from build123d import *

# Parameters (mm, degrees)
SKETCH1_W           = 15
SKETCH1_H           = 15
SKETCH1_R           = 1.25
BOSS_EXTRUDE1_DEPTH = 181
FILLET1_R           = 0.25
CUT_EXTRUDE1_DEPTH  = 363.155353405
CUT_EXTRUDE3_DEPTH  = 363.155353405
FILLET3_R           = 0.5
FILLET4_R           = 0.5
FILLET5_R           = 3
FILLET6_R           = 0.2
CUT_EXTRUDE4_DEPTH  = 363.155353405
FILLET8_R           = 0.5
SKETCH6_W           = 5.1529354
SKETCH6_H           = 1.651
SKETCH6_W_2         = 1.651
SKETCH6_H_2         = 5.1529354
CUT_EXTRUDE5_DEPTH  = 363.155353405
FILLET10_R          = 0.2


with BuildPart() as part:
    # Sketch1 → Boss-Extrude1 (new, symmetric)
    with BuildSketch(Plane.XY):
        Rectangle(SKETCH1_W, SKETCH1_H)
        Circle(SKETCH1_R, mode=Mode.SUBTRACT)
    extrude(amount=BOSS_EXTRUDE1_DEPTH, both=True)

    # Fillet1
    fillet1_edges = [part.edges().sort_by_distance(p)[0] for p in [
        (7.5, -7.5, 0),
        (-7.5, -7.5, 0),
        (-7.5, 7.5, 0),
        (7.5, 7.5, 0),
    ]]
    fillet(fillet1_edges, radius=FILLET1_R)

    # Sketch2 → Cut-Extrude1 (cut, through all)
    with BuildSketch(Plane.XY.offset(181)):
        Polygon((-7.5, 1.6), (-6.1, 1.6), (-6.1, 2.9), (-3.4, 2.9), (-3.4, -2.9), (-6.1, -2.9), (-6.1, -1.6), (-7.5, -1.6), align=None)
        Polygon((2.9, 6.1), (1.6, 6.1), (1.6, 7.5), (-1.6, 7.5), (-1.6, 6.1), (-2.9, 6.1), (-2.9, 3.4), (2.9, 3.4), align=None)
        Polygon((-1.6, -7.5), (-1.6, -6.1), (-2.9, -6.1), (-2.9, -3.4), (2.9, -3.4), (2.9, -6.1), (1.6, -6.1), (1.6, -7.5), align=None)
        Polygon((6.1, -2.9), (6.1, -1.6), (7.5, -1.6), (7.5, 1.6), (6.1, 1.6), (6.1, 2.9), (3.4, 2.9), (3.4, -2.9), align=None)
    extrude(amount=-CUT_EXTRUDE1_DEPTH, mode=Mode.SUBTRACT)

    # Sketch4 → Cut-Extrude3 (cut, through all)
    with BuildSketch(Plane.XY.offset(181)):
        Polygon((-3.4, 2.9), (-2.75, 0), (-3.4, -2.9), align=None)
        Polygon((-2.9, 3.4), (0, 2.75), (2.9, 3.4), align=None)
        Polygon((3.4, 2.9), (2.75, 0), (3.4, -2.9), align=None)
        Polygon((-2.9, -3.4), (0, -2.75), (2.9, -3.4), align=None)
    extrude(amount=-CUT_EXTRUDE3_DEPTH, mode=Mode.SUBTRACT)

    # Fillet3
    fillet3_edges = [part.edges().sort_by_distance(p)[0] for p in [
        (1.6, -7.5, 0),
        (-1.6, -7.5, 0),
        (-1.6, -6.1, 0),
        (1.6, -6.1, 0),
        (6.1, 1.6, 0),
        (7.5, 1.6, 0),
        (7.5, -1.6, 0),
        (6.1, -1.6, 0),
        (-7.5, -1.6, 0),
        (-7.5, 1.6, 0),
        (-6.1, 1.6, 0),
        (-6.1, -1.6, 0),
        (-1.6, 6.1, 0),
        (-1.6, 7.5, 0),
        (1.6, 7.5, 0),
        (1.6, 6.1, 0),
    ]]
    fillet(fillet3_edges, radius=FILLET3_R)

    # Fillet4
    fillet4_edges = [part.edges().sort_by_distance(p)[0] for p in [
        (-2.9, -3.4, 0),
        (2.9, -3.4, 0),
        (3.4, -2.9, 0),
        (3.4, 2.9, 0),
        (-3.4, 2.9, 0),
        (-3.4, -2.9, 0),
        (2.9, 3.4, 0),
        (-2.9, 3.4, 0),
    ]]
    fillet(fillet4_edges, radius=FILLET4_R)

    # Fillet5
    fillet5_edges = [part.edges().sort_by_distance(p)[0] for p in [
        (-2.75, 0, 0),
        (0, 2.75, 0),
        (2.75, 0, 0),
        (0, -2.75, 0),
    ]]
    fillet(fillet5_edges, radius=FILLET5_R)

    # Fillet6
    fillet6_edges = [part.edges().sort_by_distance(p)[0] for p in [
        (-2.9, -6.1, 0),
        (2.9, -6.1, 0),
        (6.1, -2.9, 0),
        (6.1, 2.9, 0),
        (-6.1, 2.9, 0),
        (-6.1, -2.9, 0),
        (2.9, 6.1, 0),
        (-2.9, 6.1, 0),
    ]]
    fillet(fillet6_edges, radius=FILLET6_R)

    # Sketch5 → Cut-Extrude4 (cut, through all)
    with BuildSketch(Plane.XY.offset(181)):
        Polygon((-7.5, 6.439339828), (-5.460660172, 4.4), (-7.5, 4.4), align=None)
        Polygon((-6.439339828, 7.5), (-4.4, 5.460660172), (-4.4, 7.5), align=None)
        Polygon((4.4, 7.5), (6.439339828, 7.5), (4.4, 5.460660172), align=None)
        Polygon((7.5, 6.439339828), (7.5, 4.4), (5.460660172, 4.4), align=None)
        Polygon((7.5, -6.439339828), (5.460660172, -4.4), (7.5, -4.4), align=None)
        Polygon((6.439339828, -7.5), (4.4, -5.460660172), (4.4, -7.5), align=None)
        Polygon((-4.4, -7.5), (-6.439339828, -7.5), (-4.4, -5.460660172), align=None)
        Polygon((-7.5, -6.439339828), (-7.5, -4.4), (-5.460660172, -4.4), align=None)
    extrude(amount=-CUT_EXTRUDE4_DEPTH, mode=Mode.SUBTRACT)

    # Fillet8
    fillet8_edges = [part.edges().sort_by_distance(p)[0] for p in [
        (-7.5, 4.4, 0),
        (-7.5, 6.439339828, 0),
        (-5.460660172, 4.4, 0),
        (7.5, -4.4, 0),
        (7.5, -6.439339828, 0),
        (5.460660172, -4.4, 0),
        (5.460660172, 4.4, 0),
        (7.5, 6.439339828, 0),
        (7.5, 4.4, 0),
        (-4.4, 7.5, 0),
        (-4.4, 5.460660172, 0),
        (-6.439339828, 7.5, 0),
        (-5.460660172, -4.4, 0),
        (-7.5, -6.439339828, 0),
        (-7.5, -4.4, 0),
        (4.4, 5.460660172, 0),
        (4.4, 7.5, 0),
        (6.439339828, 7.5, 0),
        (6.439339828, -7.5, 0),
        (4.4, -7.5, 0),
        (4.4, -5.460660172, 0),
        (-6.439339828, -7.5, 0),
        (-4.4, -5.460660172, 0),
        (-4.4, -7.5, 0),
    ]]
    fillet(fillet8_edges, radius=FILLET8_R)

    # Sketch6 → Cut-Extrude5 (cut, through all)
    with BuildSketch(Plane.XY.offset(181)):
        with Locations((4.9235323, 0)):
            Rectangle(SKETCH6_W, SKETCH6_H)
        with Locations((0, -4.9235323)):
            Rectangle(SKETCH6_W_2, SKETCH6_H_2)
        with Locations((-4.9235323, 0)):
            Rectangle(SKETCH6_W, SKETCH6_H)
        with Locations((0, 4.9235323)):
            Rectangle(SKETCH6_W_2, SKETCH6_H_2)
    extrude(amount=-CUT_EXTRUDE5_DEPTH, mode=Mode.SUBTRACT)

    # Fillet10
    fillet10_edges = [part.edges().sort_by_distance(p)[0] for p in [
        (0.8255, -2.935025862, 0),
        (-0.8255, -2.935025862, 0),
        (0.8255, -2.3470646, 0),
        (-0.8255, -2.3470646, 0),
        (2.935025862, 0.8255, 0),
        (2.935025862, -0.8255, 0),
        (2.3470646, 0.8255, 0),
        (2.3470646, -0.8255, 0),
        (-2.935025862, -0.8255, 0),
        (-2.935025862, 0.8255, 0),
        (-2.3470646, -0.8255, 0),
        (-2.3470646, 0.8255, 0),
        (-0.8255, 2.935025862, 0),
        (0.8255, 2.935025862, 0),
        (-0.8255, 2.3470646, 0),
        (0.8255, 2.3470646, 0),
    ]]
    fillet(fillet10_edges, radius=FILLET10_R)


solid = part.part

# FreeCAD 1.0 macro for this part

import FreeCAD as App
import Part
import Sketcher


def edges_at(feature, points):
    """Names of the edges that pass closest to the given points."""
    edges = feature.Shape.Edges
    near = lambda p: min(range(len(edges)), key=lambda i: edges[i].distToShape(Part.Vertex(*p))[0])
    return sorted({f"Edge{near(p) + 1}" for p in points})

doc = App.newDocument("Part")
body = doc.addObject("PartDesign::Body", "Body")

sketch1 = body.newObject("Sketcher::SketchObject", "Sketch")
sketch1.AttachmentSupport = (doc.getObject("XY_Plane"), [""])
sketch1.MapMode = "FlatFace"
sketch1.addGeometry([
    Part.LineSegment(App.Vector(-7.5, 7.5, 0), App.Vector(-7.5, -7.5, 0)),
    Part.LineSegment(App.Vector(-7.5, -7.5, 0), App.Vector(7.5, -7.5, 0)),
    Part.LineSegment(App.Vector(7.5, -7.5, 0), App.Vector(7.5, 7.5, 0)),
    Part.LineSegment(App.Vector(7.5, 7.5, 0), App.Vector(-7.5, 7.5, 0)),
    Part.Circle(App.Vector(0, 0, 0), App.Vector(0, 0, 1), 1.25),
], False)
sketch1.addConstraint([
    Sketcher.Constraint("Coincident", 0, 2, 1, 1),
    Sketcher.Constraint("Coincident", 1, 2, 2, 1),
    Sketcher.Constraint("Coincident", 2, 2, 3, 1),
    Sketcher.Constraint("Coincident", 3, 2, 0, 1),
    Sketcher.Constraint("Vertical", 0),
    Sketcher.Constraint("Horizontal", 1),
    Sketcher.Constraint("Vertical", 2),
    Sketcher.Constraint("Horizontal", 3),
    Sketcher.Constraint("Coincident", 4, 3, -1, 1),
    Sketcher.Constraint("Symmetric", 0, 2, 2, 2, -1, 1),
    Sketcher.Constraint("Equal", 3, 0),
    Sketcher.Constraint("Diameter", 4, 2.5),
    Sketcher.Constraint("DistanceX", 1, 1, 1, 2, 15.0),
])
pad1 = body.newObject("PartDesign::Pad", "Pad")
pad1.Profile = sketch1
pad1.Length = 362
pad1.Midplane = True
doc.recompute()

fillet = body.newObject("PartDesign::Fillet", "Fillet")
fillet.Base = (pad1, edges_at(pad1, [
    (7.5, -7.5, 0),
    (-7.5, -7.5, 0),
    (-7.5, 7.5, 0),
    (7.5, 7.5, 0),
]))
fillet.Radius = 0.25

sketch2 = body.newObject("Sketcher::SketchObject", "Sketch001")
sketch2.AttachmentSupport = (doc.getObject("XY_Plane"), [""])
sketch2.MapMode = "FlatFace"
sketch2.AttachmentOffset = App.Placement(App.Vector(0, 0, 181), App.Rotation())
sketch2.addGeometry([
    Part.LineSegment(App.Vector(-6.1, 1.6, 0), App.Vector(-7.5, 1.6, 0)),
    Part.LineSegment(App.Vector(-7.5, 1.6, 0), App.Vector(-7.5, -1.6, 0)),
    Part.LineSegment(App.Vector(-7.5, -1.6, 0), App.Vector(-6.1, -1.6, 0)),
    Part.LineSegment(App.Vector(-6.1, -1.6, 0), App.Vector(-6.1, -2.9, 0)),
    Part.LineSegment(App.Vector(-6.1, -2.9, 0), App.Vector(-3.4, -2.9, 0)),
    Part.LineSegment(App.Vector(-3.4, -2.9, 0), App.Vector(-3.4, 2.9, 0)),
    Part.LineSegment(App.Vector(-3.4, 2.9, 0), App.Vector(-6.1, 2.9, 0)),
    Part.LineSegment(App.Vector(-6.1, 2.9, 0), App.Vector(-6.1, 1.6, 0)),
    Part.LineSegment(App.Vector(2.9, 6.1, 0), App.Vector(1.6, 6.1, 0)),
    Part.LineSegment(App.Vector(1.6, 6.1, 0), App.Vector(1.6, 7.5, 0)),
    Part.LineSegment(App.Vector(1.6, 7.5, 0), App.Vector(-1.6, 7.5, 0)),
    Part.LineSegment(App.Vector(-1.6, 7.5, 0), App.Vector(-1.6, 6.1, 0)),
    Part.LineSegment(App.Vector(-1.6, 6.1, 0), App.Vector(-2.9, 6.1, 0)),
    Part.LineSegment(App.Vector(-2.9, 6.1, 0), App.Vector(-2.9, 3.4, 0)),
    Part.LineSegment(App.Vector(-2.9, 3.4, 0), App.Vector(2.9, 3.4, 0)),
    Part.LineSegment(App.Vector(2.9, 3.4, 0), App.Vector(2.9, 6.1, 0)),
    Part.LineSegment(App.Vector(-1.6, -6.1, 0), App.Vector(-1.6, -7.5, 0)),
    Part.LineSegment(App.Vector(-1.6, -7.5, 0), App.Vector(1.6, -7.5, 0)),
    Part.LineSegment(App.Vector(1.6, -7.5, 0), App.Vector(1.6, -6.1, 0)),
    Part.LineSegment(App.Vector(1.6, -6.1, 0), App.Vector(2.9, -6.1, 0)),
    Part.LineSegment(App.Vector(2.9, -6.1, 0), App.Vector(2.9, -3.4, 0)),
    Part.LineSegment(App.Vector(2.9, -3.4, 0), App.Vector(-2.9, -3.4, 0)),
    Part.LineSegment(App.Vector(-2.9, -3.4, 0), App.Vector(-2.9, -6.1, 0)),
    Part.LineSegment(App.Vector(-2.9, -6.1, 0), App.Vector(-1.6, -6.1, 0)),
    Part.LineSegment(App.Vector(6.1, -2.9, 0), App.Vector(6.1, -1.6, 0)),
    Part.LineSegment(App.Vector(6.1, -1.6, 0), App.Vector(7.5, -1.6, 0)),
    Part.LineSegment(App.Vector(7.5, -1.6, 0), App.Vector(7.5, 1.6, 0)),
    Part.LineSegment(App.Vector(7.5, 1.6, 0), App.Vector(6.1, 1.6, 0)),
    Part.LineSegment(App.Vector(6.1, 1.6, 0), App.Vector(6.1, 2.9, 0)),
    Part.LineSegment(App.Vector(6.1, 2.9, 0), App.Vector(3.4, 2.9, 0)),
    Part.LineSegment(App.Vector(3.4, 2.9, 0), App.Vector(3.4, -2.9, 0)),
    Part.LineSegment(App.Vector(3.4, -2.9, 0), App.Vector(6.1, -2.9, 0)),
], False)
sketch2.addConstraint([
    Sketcher.Constraint("Coincident", 0, 2, 1, 1),
    Sketcher.Constraint("Coincident", 1, 2, 2, 1),
    Sketcher.Constraint("Coincident", 2, 2, 3, 1),
    Sketcher.Constraint("Coincident", 3, 2, 4, 1),
    Sketcher.Constraint("Coincident", 4, 2, 5, 1),
    Sketcher.Constraint("Coincident", 5, 2, 6, 1),
    Sketcher.Constraint("Coincident", 6, 2, 7, 1),
    Sketcher.Constraint("Coincident", 7, 2, 0, 1),
    Sketcher.Constraint("Coincident", 8, 2, 9, 1),
    Sketcher.Constraint("Coincident", 9, 2, 10, 1),
    Sketcher.Constraint("Coincident", 10, 2, 11, 1),
    Sketcher.Constraint("Coincident", 11, 2, 12, 1),
    Sketcher.Constraint("Coincident", 12, 2, 13, 1),
    Sketcher.Constraint("Coincident", 13, 2, 14, 1),
    Sketcher.Constraint("Coincident", 14, 2, 15, 1),
    Sketcher.Constraint("Coincident", 15, 2, 8, 1),
    Sketcher.Constraint("Coincident", 16, 2, 17, 1),
    Sketcher.Constraint("Coincident", 17, 2, 18, 1),
    Sketcher.Constraint("Coincident", 18, 2, 19, 1),
    Sketcher.Constraint("Coincident", 19, 2, 20, 1),
    Sketcher.Constraint("Coincident", 20, 2, 21, 1),
    Sketcher.Constraint("Coincident", 21, 2, 22, 1),
    Sketcher.Constraint("Coincident", 22, 2, 23, 1),
    Sketcher.Constraint("Coincident", 23, 2, 16, 1),
    Sketcher.Constraint("Coincident", 24, 2, 25, 1),
    Sketcher.Constraint("Coincident", 25, 2, 26, 1),
    Sketcher.Constraint("Coincident", 26, 2, 27, 1),
    Sketcher.Constraint("Coincident", 27, 2, 28, 1),
    Sketcher.Constraint("Coincident", 28, 2, 29, 1),
    Sketcher.Constraint("Coincident", 29, 2, 30, 1),
    Sketcher.Constraint("Coincident", 30, 2, 31, 1),
    Sketcher.Constraint("Coincident", 31, 2, 24, 1),
    Sketcher.Constraint("Horizontal", 0),
    Sketcher.Constraint("Vertical", 1),
    Sketcher.Constraint("Horizontal", 2),
    Sketcher.Constraint("Vertical", 3),
    Sketcher.Constraint("Horizontal", 4),
    Sketcher.Constraint("Vertical", 5),
    Sketcher.Constraint("Horizontal", 6),
    Sketcher.Constraint("Vertical", 7),
    Sketcher.Constraint("Horizontal", 8),
    Sketcher.Constraint("Vertical", 9),
    Sketcher.Constraint("Horizontal", 10),
    Sketcher.Constraint("Vertical", 11),
    Sketcher.Constraint("Horizontal", 12),
    Sketcher.Constraint("Vertical", 13),
    Sketcher.Constraint("Horizontal", 14),
    Sketcher.Constraint("Vertical", 15),
    Sketcher.Constraint("Vertical", 16),
    Sketcher.Constraint("Horizontal", 17),
    Sketcher.Constraint("Vertical", 18),
    Sketcher.Constraint("Horizontal", 19),
    Sketcher.Constraint("Vertical", 20),
    Sketcher.Constraint("Horizontal", 21),
    Sketcher.Constraint("Vertical", 22),
    Sketcher.Constraint("Horizontal", 23),
    Sketcher.Constraint("Vertical", 24),
    Sketcher.Constraint("Horizontal", 25),
    Sketcher.Constraint("Vertical", 26),
    Sketcher.Constraint("Horizontal", 27),
    Sketcher.Constraint("Vertical", 28),
    Sketcher.Constraint("Horizontal", 29),
    Sketcher.Constraint("Vertical", 30),
    Sketcher.Constraint("Horizontal", 31),
    Sketcher.Constraint("Symmetric", 9, 2, 16, 2, -1, 1),
    Sketcher.Constraint("Symmetric", 11, 2, 18, 2, -1, 1),
    Sketcher.Constraint("Symmetric", 13, 2, 20, 2, -1, 1),
    Sketcher.Constraint("Symmetric", 15, 2, 22, 2, -1, 1),
    Sketcher.Constraint("Symmetric", 7, 2, 24, 2, -1, 1),
    Sketcher.Constraint("Symmetric", 1, 2, 26, 2, -1, 1),
    Sketcher.Constraint("Symmetric", 3, 2, 28, 2, -1, 1),
    Sketcher.Constraint("Symmetric", 5, 2, 30, 2, -1, 1),
    Sketcher.Constraint("Symmetric", 8, 2, 11, 2, -2),
    Sketcher.Constraint("Symmetric", 2, 2, 24, 2, -2),
    Sketcher.Constraint("Horizontal", 6, 2, 28, 2),
    Sketcher.Constraint("Vertical", 15, 2, 19, 2),
    Sketcher.Constraint("Equal", 17, 1),
    Sketcher.Constraint("Equal", 23, 3),
    Sketcher.Constraint("Equal", 27, 9),
    Sketcher.Constraint("Equal", 31, 13),
    Sketcher.Constraint("DistanceX", 0, 2, 0, 1, 1.4),
    Sketcher.Constraint("DistanceX", 4, 1, 4, 2, 2.7),
    Sketcher.Constraint("DistanceX", 8, 2, 8, 1, 1.3),
    Sketcher.Constraint("DistanceX", 10, 2, 10, 1, 3.2),
    Sketcher.Constraint("DistanceX", 5, 2, 8, 2, 5.0),
    Sketcher.Constraint("DistanceY", 4, 2, 8, 2, 9.0),
])
pocket1 = body.newObject("PartDesign::Pocket", "Pocket")
pocket1.Profile = sketch2
pocket1.Type = "ThroughAll"

sketch3 = body.newObject("Sketcher::SketchObject", "Sketch002")
sketch3.AttachmentSupport = (doc.getObject("XY_Plane"), [""])
sketch3.MapMode = "FlatFace"
sketch3.AttachmentOffset = App.Placement(App.Vector(0, 0, 181), App.Rotation())
sketch3.addGeometry([
    Part.LineSegment(App.Vector(-2.75, 0, 0), App.Vector(-3.4, 2.9, 0)),
    Part.LineSegment(App.Vector(-3.4, 2.9, 0), App.Vector(-3.4, -2.9, 0)),
    Part.LineSegment(App.Vector(-3.4, -2.9, 0), App.Vector(-2.75, 0, 0)),
    Part.LineSegment(App.Vector(-2.9, 3.4, 0), App.Vector(0, 2.75, 0)),
    Part.LineSegment(App.Vector(0, 2.75, 0), App.Vector(2.9, 3.4, 0)),
    Part.LineSegment(App.Vector(2.9, 3.4, 0), App.Vector(-2.9, 3.4, 0)),
    Part.LineSegment(App.Vector(3.4, 2.9, 0), App.Vector(2.75, 0, 0)),
    Part.LineSegment(App.Vector(2.75, 0, 0), App.Vector(3.4, -2.9, 0)),
    Part.LineSegment(App.Vector(3.4, -2.9, 0), App.Vector(3.4, 2.9, 0)),
    Part.LineSegment(App.Vector(0, -2.75, 0), App.Vector(-2.9, -3.4, 0)),
    Part.LineSegment(App.Vector(-2.9, -3.4, 0), App.Vector(2.9, -3.4, 0)),
    Part.LineSegment(App.Vector(2.9, -3.4, 0), App.Vector(0, -2.75, 0)),
], False)
sketch3.addConstraint([
    Sketcher.Constraint("Coincident", 0, 2, 1, 1),
    Sketcher.Constraint("Coincident", 1, 2, 2, 1),
    Sketcher.Constraint("Coincident", 2, 2, 0, 1),
    Sketcher.Constraint("Coincident", 3, 2, 4, 1),
    Sketcher.Constraint("Coincident", 4, 2, 5, 1),
    Sketcher.Constraint("Coincident", 5, 2, 3, 1),
    Sketcher.Constraint("Coincident", 6, 2, 7, 1),
    Sketcher.Constraint("Coincident", 7, 2, 8, 1),
    Sketcher.Constraint("Coincident", 8, 2, 6, 1),
    Sketcher.Constraint("Coincident", 9, 2, 10, 1),
    Sketcher.Constraint("Coincident", 10, 2, 11, 1),
    Sketcher.Constraint("Coincident", 11, 2, 9, 1),
    Sketcher.Constraint("Vertical", 1),
    Sketcher.Constraint("Horizontal", 5),
    Sketcher.Constraint("Vertical", 8),
    Sketcher.Constraint("Horizontal", 10),
    Sketcher.Constraint("Symmetric", 2, 2, 6, 2, -1, 1),
    Sketcher.Constraint("Symmetric", 0, 2, 7, 2, -1, 1),
    Sketcher.Constraint("Symmetric", 4, 2, 9, 2, -1, 1),
    Sketcher.Constraint("Symmetric", 3, 2, 11, 2, -1, 1),
    Sketcher.Constraint("PointOnObject", 2, 2, -1),
    Sketcher.Constraint("PointOnObject", 3, 2, -2),
    Sketcher.Constraint("Perpendicular", 2, 3),
    Sketcher.Constraint("Perpendicular", 0, 4),
    Sketcher.Constraint("Perpendicular", 3, 6),
    Sketcher.Constraint("Perpendicular", 6, 11),
    Sketcher.Constraint("Horizontal", 1, 2, 7, 2),
    Sketcher.Constraint("Equal", 10, 1),
    Sketcher.Constraint("DistanceX", 5, 2, 5, 1, 5.8),
    Sketcher.Constraint("DistanceX", 0, 2, -1, 1, 3.4),
    Sketcher.Constraint("DistanceY", -1, 1, 4, 2, 3.4),
    Sketcher.Constraint("DistanceX", 2, 2, 6, 2, 5.5),
])
pocket2 = body.newObject("PartDesign::Pocket", "Pocket001")
pocket2.Profile = sketch3
pocket2.Type = "ThroughAll"
doc.recompute()

fillet2 = body.newObject("PartDesign::Fillet", "Fillet001")
fillet2.Base = (pocket2, edges_at(pocket2, [
    (1.6, -7.5, 0),
    (-1.6, -7.5, 0),
    (-1.6, -6.1, 0),
    (1.6, -6.1, 0),
    (6.1, 1.6, 0),
    (7.5, 1.6, 0),
    (7.5, -1.6, 0),
    (6.1, -1.6, 0),
    (-7.5, -1.6, 0),
    (-7.5, 1.6, 0),
    (-6.1, 1.6, 0),
    (-6.1, -1.6, 0),
    (-1.6, 6.1, 0),
    (-1.6, 7.5, 0),
    (1.6, 7.5, 0),
    (1.6, 6.1, 0),
]))
fillet2.Radius = 0.5
doc.recompute()

fillet3 = body.newObject("PartDesign::Fillet", "Fillet002")
fillet3.Base = (fillet2, edges_at(fillet2, [
    (-2.9, -3.4, 0),
    (2.9, -3.4, 0),
    (3.4, -2.9, 0),
    (3.4, 2.9, 0),
    (-3.4, 2.9, 0),
    (-3.4, -2.9, 0),
    (2.9, 3.4, 0),
    (-2.9, 3.4, 0),
]))
fillet3.Radius = 0.5
doc.recompute()

fillet4 = body.newObject("PartDesign::Fillet", "Fillet003")
fillet4.Base = (fillet3, edges_at(fillet3, [
    (-2.75, 0, 0),
    (0, 2.75, 0),
    (2.75, 0, 0),
    (0, -2.75, 0),
]))
fillet4.Radius = 3
doc.recompute()

fillet5 = body.newObject("PartDesign::Fillet", "Fillet004")
fillet5.Base = (fillet4, edges_at(fillet4, [
    (-2.9, -6.1, 0),
    (2.9, -6.1, 0),
    (6.1, -2.9, 0),
    (6.1, 2.9, 0),
    (-6.1, 2.9, 0),
    (-6.1, -2.9, 0),
    (2.9, 6.1, 0),
    (-2.9, 6.1, 0),
]))
fillet5.Radius = 0.2

sketch4 = body.newObject("Sketcher::SketchObject", "Sketch003")
sketch4.AttachmentSupport = (doc.getObject("XY_Plane"), [""])
sketch4.MapMode = "FlatFace"
sketch4.AttachmentOffset = App.Placement(App.Vector(0, 0, 181), App.Rotation())
sketch4.addGeometry([
    Part.LineSegment(App.Vector(-5.46066, 4.4, 0), App.Vector(-7.5, 6.43934, 0)),
    Part.LineSegment(App.Vector(-7.5, 6.43934, 0), App.Vector(-7.5, 4.4, 0)),
    Part.LineSegment(App.Vector(-7.5, 4.4, 0), App.Vector(-5.46066, 4.4, 0)),
    Part.LineSegment(App.Vector(-6.43934, 7.5, 0), App.Vector(-4.4, 5.46066, 0)),
    Part.LineSegment(App.Vector(-4.4, 5.46066, 0), App.Vector(-4.4, 7.5, 0)),
    Part.LineSegment(App.Vector(-4.4, 7.5, 0), App.Vector(-6.43934, 7.5, 0)),
    Part.LineSegment(App.Vector(6.43934, 7.5, 0), App.Vector(4.4, 7.5, 0)),
    Part.LineSegment(App.Vector(4.4, 7.5, 0), App.Vector(4.4, 5.46066, 0)),
    Part.LineSegment(App.Vector(4.4, 5.46066, 0), App.Vector(6.43934, 7.5, 0)),
    Part.LineSegment(App.Vector(7.5, 4.4, 0), App.Vector(7.5, 6.43934, 0)),
    Part.LineSegment(App.Vector(7.5, 6.43934, 0), App.Vector(5.46066, 4.4, 0)),
    Part.LineSegment(App.Vector(5.46066, 4.4, 0), App.Vector(7.5, 4.4, 0)),
    Part.LineSegment(App.Vector(5.46066, -4.4, 0), App.Vector(7.5, -6.43934, 0)),
    Part.LineSegment(App.Vector(7.5, -6.43934, 0), App.Vector(7.5, -4.4, 0)),
    Part.LineSegment(App.Vector(7.5, -4.4, 0), App.Vector(5.46066, -4.4, 0)),
    Part.LineSegment(App.Vector(6.43934, -7.5, 0), App.Vector(4.4, -5.46066, 0)),
    Part.LineSegment(App.Vector(4.4, -5.46066, 0), App.Vector(4.4, -7.5, 0)),
    Part.LineSegment(App.Vector(4.4, -7.5, 0), App.Vector(6.43934, -7.5, 0)),
    Part.LineSegment(App.Vector(-6.43934, -7.5, 0), App.Vector(-4.4, -7.5, 0)),
    Part.LineSegment(App.Vector(-4.4, -7.5, 0), App.Vector(-4.4, -5.46066, 0)),
    Part.LineSegment(App.Vector(-4.4, -5.46066, 0), App.Vector(-6.43934, -7.5, 0)),
    Part.LineSegment(App.Vector(-7.5, -4.4, 0), App.Vector(-7.5, -6.43934, 0)),
    Part.LineSegment(App.Vector(-7.5, -6.43934, 0), App.Vector(-5.46066, -4.4, 0)),
    Part.LineSegment(App.Vector(-5.46066, -4.4, 0), App.Vector(-7.5, -4.4, 0)),
], False)
sketch4.addConstraint([
    Sketcher.Constraint("Coincident", 0, 2, 1, 1),
    Sketcher.Constraint("Coincident", 1, 2, 2, 1),
    Sketcher.Constraint("Coincident", 2, 2, 0, 1),
    Sketcher.Constraint("Coincident", 3, 2, 4, 1),
    Sketcher.Constraint("Coincident", 4, 2, 5, 1),
    Sketcher.Constraint("Coincident", 5, 2, 3, 1),
    Sketcher.Constraint("Coincident", 6, 2, 7, 1),
    Sketcher.Constraint("Coincident", 7, 2, 8, 1),
    Sketcher.Constraint("Coincident", 8, 2, 6, 1),
    Sketcher.Constraint("Coincident", 9, 2, 10, 1),
    Sketcher.Constraint("Coincident", 10, 2, 11, 1),
    Sketcher.Constraint("Coincident", 11, 2, 9, 1),
    Sketcher.Constraint("Coincident", 12, 2, 13, 1),
    Sketcher.Constraint("Coincident", 13, 2, 14, 1),
    Sketcher.Constraint("Coincident", 14, 2, 12, 1),
    Sketcher.Constraint("Coincident", 15, 2, 16, 1),
    Sketcher.Constraint("Coincident", 16, 2, 17, 1),
    Sketcher.Constraint("Coincident", 17, 2, 15, 1),
    Sketcher.Constraint("Coincident", 18, 2, 19, 1),
    Sketcher.Constraint("Coincident", 19, 2, 20, 1),
    Sketcher.Constraint("Coincident", 20, 2, 18, 1),
    Sketcher.Constraint("Coincident", 21, 2, 22, 1),
    Sketcher.Constraint("Coincident", 22, 2, 23, 1),
    Sketcher.Constraint("Coincident", 23, 2, 21, 1),
    Sketcher.Constraint("Vertical", 1),
    Sketcher.Constraint("Horizontal", 2),
    Sketcher.Constraint("Vertical", 4),
    Sketcher.Constraint("Horizontal", 5),
    Sketcher.Constraint("Horizontal", 6),
    Sketcher.Constraint("Vertical", 7),
    Sketcher.Constraint("Vertical", 9),
    Sketcher.Constraint("Horizontal", 11),
    Sketcher.Constraint("Vertical", 13),
    Sketcher.Constraint("Horizontal", 14),
    Sketcher.Constraint("Vertical", 16),
    Sketcher.Constraint("Horizontal", 17),
    Sketcher.Constraint("Horizontal", 18),
    Sketcher.Constraint("Vertical", 19),
    Sketcher.Constraint("Vertical", 21),
    Sketcher.Constraint("Horizontal", 23),
    Sketcher.Constraint("Symmetric", 0, 2, 12, 2, -1, 1),
    Sketcher.Constraint("Symmetric", 2, 2, 14, 2, -1, 1),
    Sketcher.Constraint("Symmetric", 3, 2, 15, 2, -1, 1),
    Sketcher.Constraint("Symmetric", 5, 2, 17, 2, -1, 1),
    Sketcher.Constraint("Symmetric", 6, 2, 18, 2, -1, 1),
    Sketcher.Constraint("Symmetric", 9, 2, 21, 2, -1, 1),
    Sketcher.Constraint("Symmetric", 10, 2, 22, 2, -1, 1),
    Sketcher.Constraint("Symmetric", 4, 2, 6, 2, -2),
    Sketcher.Constraint("Symmetric", 0, 2, 9, 2, -2),
    Sketcher.Constraint("Symmetric", 2, 2, 10, 2, -2),
    Sketcher.Constraint("Parallel", 0, 3),
    Sketcher.Constraint("Perpendicular", 3, 8),
    Sketcher.Constraint("Parallel", 8, 10),
    Sketcher.Constraint("Perpendicular", 15, 20),
    Sketcher.Constraint("Horizontal", 3, 2, 7, 2),
    Sketcher.Constraint("Horizontal", 15, 2, 19, 2),
    Sketcher.Constraint("Equal", 2, 5),
    Sketcher.Constraint("DistanceX", 0, 2, -1, 1, 7.5),
    Sketcher.Constraint("DistanceY", -1, 1, 1, 2, 4.4),
    Sketcher.Constraint("DistanceX", 3, 2, -1, 1, 4.4),
    Sketcher.Constraint("DistanceY", -1, 1, 4, 2, 7.5),
    Sketcher.Constraint("DistanceX", 2, 1, 2, 2, 2.03934),
])
pocket3 = body.newObject("PartDesign::Pocket", "Pocket002")
pocket3.Profile = sketch4
pocket3.Type = "ThroughAll"
doc.recompute()

fillet6 = body.newObject("PartDesign::Fillet", "Fillet005")
fillet6.Base = (pocket3, edges_at(pocket3, [
    (-7.5, 4.4, 0),
    (-7.5, 6.439, 0),
    (-5.461, 4.4, 0),
    (7.5, -4.4, 0),
    (7.5, -6.439, 0),
    (5.461, -4.4, 0),
    (5.461, 4.4, 0),
    (7.5, 6.439, 0),
    (7.5, 4.4, 0),
    (-4.4, 7.5, 0),
    (-4.4, 5.461, 0),
    (-6.439, 7.5, 0),
    (-5.461, -4.4, 0),
    (-7.5, -6.439, 0),
    (-7.5, -4.4, 0),
    (4.4, 5.461, 0),
    (4.4, 7.5, 0),
    (6.439, 7.5, 0),
    (6.439, -7.5, 0),
    (4.4, -7.5, 0),
    (4.4, -5.461, 0),
    (-6.439, -7.5, 0),
    (-4.4, -5.461, 0),
    (-4.4, -7.5, 0),
]))
fillet6.Radius = 0.5

sketch5 = body.newObject("Sketcher::SketchObject", "Sketch004")
sketch5.AttachmentSupport = (doc.getObject("XY_Plane"), [""])
sketch5.MapMode = "FlatFace"
sketch5.AttachmentOffset = App.Placement(App.Vector(0, 0, 181), App.Rotation())
sketch5.addGeometry([
    Part.LineSegment(App.Vector(2.347065, 0.8255, 0), App.Vector(2.347065, -0.8255, 0)),
    Part.LineSegment(App.Vector(2.347065, -0.8255, 0), App.Vector(7.5, -0.8255, 0)),
    Part.LineSegment(App.Vector(7.5, -0.8255, 0), App.Vector(7.5, 0.8255, 0)),
    Part.LineSegment(App.Vector(7.5, 0.8255, 0), App.Vector(2.347065, 0.8255, 0)),
    Part.LineSegment(App.Vector(-0.8255, -2.347065, 0), App.Vector(-0.8255, -7.5, 0)),
    Part.LineSegment(App.Vector(-0.8255, -7.5, 0), App.Vector(0.8255, -7.5, 0)),
    Part.LineSegment(App.Vector(0.8255, -7.5, 0), App.Vector(0.8255, -2.347065, 0)),
    Part.LineSegment(App.Vector(0.8255, -2.347065, 0), App.Vector(-0.8255, -2.347065, 0)),
    Part.LineSegment(App.Vector(-7.5, 0.8255, 0), App.Vector(-7.5, -0.8255, 0)),
    Part.LineSegment(App.Vector(-7.5, -0.8255, 0), App.Vector(-2.347065, -0.8255, 0)),
    Part.LineSegment(App.Vector(-2.347065, -0.8255, 0), App.Vector(-2.347065, 0.8255, 0)),
    Part.LineSegment(App.Vector(-2.347065, 0.8255, 0), App.Vector(-7.5, 0.8255, 0)),
    Part.LineSegment(App.Vector(-0.8255, 7.5, 0), App.Vector(-0.8255, 2.347065, 0)),
    Part.LineSegment(App.Vector(-0.8255, 2.347065, 0), App.Vector(0.8255, 2.347065, 0)),
    Part.LineSegment(App.Vector(0.8255, 2.347065, 0), App.Vector(0.8255, 7.5, 0)),
    Part.LineSegment(App.Vector(0.8255, 7.5, 0), App.Vector(-0.8255, 7.5, 0)),
], False)
sketch5.addConstraint([
    Sketcher.Constraint("Coincident", 0, 2, 1, 1),
    Sketcher.Constraint("Coincident", 1, 2, 2, 1),
    Sketcher.Constraint("Coincident", 2, 2, 3, 1),
    Sketcher.Constraint("Coincident", 3, 2, 0, 1),
    Sketcher.Constraint("Coincident", 4, 2, 5, 1),
    Sketcher.Constraint("Coincident", 5, 2, 6, 1),
    Sketcher.Constraint("Coincident", 6, 2, 7, 1),
    Sketcher.Constraint("Coincident", 7, 2, 4, 1),
    Sketcher.Constraint("Coincident", 8, 2, 9, 1),
    Sketcher.Constraint("Coincident", 9, 2, 10, 1),
    Sketcher.Constraint("Coincident", 10, 2, 11, 1),
    Sketcher.Constraint("Coincident", 11, 2, 8, 1),
    Sketcher.Constraint("Coincident", 12, 2, 13, 1),
    Sketcher.Constraint("Coincident", 13, 2, 14, 1),
    Sketcher.Constraint("Coincident", 14, 2, 15, 1),
    Sketcher.Constraint("Coincident", 15, 2, 12, 1),
    Sketcher.Constraint("Vertical", 0),
    Sketcher.Constraint("Horizontal", 1),
    Sketcher.Constraint("Vertical", 2),
    Sketcher.Constraint("Horizontal", 3),
    Sketcher.Constraint("Vertical", 4),
    Sketcher.Constraint("Horizontal", 5),
    Sketcher.Constraint("Vertical", 6),
    Sketcher.Constraint("Horizontal", 7),
    Sketcher.Constraint("Vertical", 8),
    Sketcher.Constraint("Horizontal", 9),
    Sketcher.Constraint("Vertical", 10),
    Sketcher.Constraint("Horizontal", 11),
    Sketcher.Constraint("Vertical", 12),
    Sketcher.Constraint("Horizontal", 13),
    Sketcher.Constraint("Vertical", 14),
    Sketcher.Constraint("Horizontal", 15),
    Sketcher.Constraint("Symmetric", 2, 2, 8, 2, -1, 1),
    Sketcher.Constraint("Symmetric", 0, 2, 10, 2, -1, 1),
    Sketcher.Constraint("Symmetric", 6, 2, 12, 2, -1, 1),
    Sketcher.Constraint("Symmetric", 4, 2, 14, 2, -1, 1),
    Sketcher.Constraint("Horizontal", 1, 2, 8, 2),
    Sketcher.Constraint("Vertical", 7, 2, 12, 2),
    Sketcher.Constraint("Equal", 15, 0),
    Sketcher.Constraint("Equal", 11, 4),
    Sketcher.Constraint("DistanceX", -1, 1, 1, 2, 7.5),
    Sketcher.Constraint("DistanceY", 4, 2, -1, 1, 7.5),
    Sketcher.Constraint("DistanceX", 5, 1, 5, 2, 1.651),
    Sketcher.Constraint("DistanceX", 1, 1, 1, 2, 5.152935),
])
pocket4 = body.newObject("PartDesign::Pocket", "Pocket003")
pocket4.Profile = sketch5
pocket4.Type = "ThroughAll"
doc.recompute()

fillet7 = body.newObject("PartDesign::Fillet", "Fillet006")
fillet7.Base = (pocket4, edges_at(pocket4, [
    (0.826, -2.935, 0),
    (-0.826, -2.935, 0),
    (0.826, -2.347, 0),
    (-0.826, -2.347, 0),
    (2.935, 0.826, 0),
    (2.935, -0.826, 0),
    (2.347, 0.826, 0),
    (2.347, -0.826, 0),
    (-2.935, -0.826, 0),
    (-2.935, 0.826, 0),
    (-2.347, -0.826, 0),
    (-2.347, 0.826, 0),
    (-0.826, 2.935, 0),
    (0.826, 2.935, 0),
    (-0.826, 2.347, 0),
    (0.826, 2.347, 0),
]))
fillet7.Radius = 0.2

doc.recompute()
